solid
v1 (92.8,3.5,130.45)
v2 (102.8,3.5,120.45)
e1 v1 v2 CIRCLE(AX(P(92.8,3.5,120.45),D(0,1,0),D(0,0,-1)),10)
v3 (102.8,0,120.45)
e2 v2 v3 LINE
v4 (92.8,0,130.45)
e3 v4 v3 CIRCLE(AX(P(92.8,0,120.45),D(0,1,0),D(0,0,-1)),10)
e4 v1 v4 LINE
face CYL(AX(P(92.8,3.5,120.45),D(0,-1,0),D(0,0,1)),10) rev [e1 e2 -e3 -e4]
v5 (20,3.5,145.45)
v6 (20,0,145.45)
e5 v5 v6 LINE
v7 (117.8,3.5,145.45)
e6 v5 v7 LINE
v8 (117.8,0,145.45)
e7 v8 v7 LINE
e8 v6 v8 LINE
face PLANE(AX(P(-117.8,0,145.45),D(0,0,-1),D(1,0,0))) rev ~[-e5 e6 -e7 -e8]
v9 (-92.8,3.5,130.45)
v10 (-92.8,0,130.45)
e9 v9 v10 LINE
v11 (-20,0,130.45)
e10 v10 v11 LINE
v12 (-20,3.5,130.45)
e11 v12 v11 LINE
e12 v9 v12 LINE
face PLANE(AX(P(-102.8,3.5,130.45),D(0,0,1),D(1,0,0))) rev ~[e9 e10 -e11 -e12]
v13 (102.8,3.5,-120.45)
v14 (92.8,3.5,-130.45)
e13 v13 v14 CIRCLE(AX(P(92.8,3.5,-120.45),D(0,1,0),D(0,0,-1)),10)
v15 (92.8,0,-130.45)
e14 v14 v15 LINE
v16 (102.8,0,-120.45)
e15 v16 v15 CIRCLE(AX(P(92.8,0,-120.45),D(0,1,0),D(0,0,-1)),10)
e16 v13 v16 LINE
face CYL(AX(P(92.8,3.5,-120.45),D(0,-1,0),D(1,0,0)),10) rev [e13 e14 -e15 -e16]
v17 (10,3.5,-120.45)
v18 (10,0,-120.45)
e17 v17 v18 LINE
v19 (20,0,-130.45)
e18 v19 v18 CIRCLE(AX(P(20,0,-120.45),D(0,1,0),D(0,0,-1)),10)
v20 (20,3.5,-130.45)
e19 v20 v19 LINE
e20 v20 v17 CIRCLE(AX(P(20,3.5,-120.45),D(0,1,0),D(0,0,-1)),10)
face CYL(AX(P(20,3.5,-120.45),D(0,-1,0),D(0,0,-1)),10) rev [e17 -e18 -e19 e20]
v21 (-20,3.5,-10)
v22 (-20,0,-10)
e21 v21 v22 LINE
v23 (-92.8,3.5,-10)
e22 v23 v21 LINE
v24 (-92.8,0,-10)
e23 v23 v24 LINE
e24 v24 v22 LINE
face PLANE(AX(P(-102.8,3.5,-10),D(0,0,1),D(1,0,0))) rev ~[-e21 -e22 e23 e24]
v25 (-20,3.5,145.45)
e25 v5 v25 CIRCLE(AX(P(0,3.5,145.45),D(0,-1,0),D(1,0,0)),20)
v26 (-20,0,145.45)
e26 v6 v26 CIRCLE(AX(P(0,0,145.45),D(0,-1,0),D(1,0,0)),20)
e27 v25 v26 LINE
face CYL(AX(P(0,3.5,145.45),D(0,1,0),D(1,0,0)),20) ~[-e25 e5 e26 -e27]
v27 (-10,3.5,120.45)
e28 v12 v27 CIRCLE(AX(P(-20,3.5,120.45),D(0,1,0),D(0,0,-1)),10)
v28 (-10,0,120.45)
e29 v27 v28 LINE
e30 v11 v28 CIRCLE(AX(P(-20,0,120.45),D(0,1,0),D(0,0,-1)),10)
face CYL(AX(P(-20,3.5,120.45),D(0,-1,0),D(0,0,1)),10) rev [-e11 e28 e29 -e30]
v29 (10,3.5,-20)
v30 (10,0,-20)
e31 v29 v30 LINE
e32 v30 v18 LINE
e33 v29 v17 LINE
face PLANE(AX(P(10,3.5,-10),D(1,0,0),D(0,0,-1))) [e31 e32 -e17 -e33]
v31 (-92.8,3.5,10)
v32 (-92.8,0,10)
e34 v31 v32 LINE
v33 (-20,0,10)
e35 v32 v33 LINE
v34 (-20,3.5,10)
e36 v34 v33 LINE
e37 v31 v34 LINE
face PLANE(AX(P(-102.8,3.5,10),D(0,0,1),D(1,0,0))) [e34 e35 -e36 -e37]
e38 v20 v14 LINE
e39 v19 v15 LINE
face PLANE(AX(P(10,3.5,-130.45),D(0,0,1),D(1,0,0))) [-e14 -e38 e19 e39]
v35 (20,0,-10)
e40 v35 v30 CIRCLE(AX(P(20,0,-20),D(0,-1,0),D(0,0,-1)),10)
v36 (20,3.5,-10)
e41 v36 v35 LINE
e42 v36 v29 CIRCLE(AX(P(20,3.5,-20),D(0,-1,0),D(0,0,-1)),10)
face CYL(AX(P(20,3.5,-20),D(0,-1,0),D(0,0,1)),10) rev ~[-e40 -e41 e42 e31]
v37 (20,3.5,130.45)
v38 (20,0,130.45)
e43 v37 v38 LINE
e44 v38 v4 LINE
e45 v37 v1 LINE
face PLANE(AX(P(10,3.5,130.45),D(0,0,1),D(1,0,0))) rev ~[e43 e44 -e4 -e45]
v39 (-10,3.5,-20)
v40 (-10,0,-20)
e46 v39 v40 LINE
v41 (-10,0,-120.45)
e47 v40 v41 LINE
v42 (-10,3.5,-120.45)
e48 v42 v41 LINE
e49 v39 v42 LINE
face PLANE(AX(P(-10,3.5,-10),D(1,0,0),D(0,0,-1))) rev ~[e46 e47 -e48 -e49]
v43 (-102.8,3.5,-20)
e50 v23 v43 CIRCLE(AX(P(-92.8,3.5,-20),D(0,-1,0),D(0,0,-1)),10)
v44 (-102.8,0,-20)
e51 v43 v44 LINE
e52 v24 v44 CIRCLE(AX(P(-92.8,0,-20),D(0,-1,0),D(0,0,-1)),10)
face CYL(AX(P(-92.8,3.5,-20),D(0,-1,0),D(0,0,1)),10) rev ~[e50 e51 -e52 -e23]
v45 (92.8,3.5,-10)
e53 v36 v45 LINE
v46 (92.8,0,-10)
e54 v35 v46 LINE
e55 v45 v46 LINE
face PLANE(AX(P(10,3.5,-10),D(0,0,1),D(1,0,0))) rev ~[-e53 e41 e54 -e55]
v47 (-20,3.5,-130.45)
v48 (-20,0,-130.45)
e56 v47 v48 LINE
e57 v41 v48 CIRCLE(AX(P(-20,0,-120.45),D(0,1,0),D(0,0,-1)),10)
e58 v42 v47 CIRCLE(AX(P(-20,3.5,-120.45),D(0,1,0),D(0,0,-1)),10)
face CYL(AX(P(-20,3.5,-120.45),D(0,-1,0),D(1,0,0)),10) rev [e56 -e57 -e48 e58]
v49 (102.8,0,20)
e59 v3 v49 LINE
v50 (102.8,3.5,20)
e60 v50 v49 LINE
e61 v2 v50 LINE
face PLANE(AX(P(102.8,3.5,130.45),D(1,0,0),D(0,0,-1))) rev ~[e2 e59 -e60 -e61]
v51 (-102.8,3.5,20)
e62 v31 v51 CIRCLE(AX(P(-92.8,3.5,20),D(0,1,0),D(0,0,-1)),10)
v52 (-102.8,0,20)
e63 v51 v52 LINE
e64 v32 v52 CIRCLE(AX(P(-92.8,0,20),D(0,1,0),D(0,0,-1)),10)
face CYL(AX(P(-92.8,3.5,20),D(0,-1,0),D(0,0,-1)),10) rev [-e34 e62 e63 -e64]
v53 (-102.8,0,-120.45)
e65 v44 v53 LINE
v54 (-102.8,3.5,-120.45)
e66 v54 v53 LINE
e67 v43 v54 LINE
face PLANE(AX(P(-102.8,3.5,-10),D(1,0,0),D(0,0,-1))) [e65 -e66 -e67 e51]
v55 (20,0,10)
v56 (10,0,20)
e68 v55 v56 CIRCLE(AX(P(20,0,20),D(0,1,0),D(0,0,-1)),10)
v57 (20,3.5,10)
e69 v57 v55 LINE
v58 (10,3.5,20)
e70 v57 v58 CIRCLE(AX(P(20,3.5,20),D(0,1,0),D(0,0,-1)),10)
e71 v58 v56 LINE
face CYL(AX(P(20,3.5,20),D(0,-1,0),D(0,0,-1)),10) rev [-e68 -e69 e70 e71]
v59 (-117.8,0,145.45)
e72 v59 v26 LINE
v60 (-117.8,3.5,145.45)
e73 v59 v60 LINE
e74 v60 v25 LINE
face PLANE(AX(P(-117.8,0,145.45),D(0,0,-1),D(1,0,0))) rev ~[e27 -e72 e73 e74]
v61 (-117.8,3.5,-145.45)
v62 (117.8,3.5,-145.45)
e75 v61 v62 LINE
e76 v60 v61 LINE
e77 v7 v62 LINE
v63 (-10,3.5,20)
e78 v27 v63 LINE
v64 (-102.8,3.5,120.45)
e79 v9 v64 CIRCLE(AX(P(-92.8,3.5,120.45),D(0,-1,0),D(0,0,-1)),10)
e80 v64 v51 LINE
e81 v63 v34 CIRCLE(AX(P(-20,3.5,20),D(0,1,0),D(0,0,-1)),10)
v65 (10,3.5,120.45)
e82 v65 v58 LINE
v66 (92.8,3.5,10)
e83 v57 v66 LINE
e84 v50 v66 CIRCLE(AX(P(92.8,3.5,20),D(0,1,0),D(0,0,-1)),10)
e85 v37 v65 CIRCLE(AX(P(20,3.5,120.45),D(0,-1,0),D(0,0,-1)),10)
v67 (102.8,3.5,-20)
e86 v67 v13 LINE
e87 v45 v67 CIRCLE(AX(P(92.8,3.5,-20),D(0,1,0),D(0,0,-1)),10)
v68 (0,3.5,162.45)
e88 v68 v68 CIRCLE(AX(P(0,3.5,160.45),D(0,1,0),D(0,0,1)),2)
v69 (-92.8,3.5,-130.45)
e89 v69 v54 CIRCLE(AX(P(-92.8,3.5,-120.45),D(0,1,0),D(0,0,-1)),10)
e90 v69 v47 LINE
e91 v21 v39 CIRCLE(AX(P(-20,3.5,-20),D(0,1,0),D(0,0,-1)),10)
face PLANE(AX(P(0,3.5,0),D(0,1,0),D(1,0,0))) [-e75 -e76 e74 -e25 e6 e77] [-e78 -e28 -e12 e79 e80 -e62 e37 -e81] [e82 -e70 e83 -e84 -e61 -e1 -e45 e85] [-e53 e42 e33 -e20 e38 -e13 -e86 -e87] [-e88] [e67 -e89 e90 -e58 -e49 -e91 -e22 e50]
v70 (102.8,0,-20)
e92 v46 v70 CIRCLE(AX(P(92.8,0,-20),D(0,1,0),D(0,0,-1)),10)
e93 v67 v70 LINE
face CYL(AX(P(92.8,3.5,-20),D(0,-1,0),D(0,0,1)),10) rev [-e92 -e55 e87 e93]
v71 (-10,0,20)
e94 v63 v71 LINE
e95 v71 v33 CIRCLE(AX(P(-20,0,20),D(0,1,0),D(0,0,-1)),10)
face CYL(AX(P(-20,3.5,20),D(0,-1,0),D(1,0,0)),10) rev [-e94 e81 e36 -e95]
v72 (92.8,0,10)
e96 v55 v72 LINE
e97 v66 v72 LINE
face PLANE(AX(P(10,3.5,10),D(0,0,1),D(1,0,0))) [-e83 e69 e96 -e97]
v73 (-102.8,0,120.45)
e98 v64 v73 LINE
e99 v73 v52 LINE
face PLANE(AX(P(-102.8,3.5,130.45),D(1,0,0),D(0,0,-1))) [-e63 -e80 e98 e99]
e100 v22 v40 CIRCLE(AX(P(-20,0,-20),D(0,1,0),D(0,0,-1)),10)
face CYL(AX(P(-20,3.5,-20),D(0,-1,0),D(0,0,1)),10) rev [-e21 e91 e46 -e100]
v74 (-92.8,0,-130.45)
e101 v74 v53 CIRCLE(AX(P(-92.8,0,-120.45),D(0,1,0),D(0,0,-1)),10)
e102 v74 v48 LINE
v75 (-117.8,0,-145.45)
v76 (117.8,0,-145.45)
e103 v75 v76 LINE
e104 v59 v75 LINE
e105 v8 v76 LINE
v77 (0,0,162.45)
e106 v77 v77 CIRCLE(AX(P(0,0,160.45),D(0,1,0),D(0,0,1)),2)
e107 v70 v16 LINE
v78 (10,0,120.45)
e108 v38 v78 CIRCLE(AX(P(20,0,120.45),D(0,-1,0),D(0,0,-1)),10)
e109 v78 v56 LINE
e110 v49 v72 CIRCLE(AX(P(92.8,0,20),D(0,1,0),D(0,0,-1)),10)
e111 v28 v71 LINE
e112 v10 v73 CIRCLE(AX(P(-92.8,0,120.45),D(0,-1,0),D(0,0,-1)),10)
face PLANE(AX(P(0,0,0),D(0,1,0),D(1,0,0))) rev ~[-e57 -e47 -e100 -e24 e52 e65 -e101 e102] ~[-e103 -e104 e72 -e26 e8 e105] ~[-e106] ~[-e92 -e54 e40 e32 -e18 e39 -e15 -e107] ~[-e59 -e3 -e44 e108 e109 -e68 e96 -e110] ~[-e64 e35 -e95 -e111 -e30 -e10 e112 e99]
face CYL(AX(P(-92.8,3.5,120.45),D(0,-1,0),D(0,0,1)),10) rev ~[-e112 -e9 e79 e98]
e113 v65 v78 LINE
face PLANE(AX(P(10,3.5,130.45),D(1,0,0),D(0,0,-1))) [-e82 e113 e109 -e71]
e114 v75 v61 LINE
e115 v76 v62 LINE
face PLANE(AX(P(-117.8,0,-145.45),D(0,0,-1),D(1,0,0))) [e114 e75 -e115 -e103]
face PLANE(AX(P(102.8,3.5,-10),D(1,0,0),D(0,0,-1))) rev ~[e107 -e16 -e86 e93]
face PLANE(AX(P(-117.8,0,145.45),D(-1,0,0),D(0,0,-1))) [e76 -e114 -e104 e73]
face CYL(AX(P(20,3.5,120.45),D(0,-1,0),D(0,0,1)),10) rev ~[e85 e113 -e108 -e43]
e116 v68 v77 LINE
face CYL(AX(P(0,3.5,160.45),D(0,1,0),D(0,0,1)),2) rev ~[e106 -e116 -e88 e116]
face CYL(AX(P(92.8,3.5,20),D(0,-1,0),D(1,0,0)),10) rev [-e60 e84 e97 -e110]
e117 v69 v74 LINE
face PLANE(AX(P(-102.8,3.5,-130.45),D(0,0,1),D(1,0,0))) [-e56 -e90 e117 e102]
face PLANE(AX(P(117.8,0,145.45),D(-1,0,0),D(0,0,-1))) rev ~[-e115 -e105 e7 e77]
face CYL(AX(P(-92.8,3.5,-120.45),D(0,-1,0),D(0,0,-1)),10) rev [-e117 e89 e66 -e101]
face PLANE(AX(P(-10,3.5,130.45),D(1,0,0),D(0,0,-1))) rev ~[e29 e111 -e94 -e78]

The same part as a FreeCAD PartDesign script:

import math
import FreeCAD as App
import Part
import Sketcher
Q = App.Units.Quantity


def edges_at(feature, points):
    """Names of the edges that pass closest to the given points."""
    edges = feature.Shape.Edges
    near = lambda p: min(range(len(edges)), key=lambda i: edges[i].distToShape(Part.Vertex(*p))[0])
    return sorted({f"Edge{near(p) + 1}" for p in points})

doc = App.newDocument("Part")
body = doc.addObject("PartDesign::Body", "Body")

# Sketch on XZ plane
sketch1 = doc.addObject("Sketcher::SketchObject", "Sketch")
body.addObject(sketch1)
sketch1.AttachmentSupport = (doc.XZ_Plane, [""])
sketch1.MapMode = "FlatFace"
sketch1.addGeometry([
    Part.LineSegment(App.Vector(-118, -145, 0), App.Vector(-118, 145, 0)),
    Part.LineSegment(App.Vector(-118, 145, 0), App.Vector(118, 145, 0)),
    Part.LineSegment(App.Vector(118, 145, 0), App.Vector(118, -145, 0)),
    Part.LineSegment(App.Vector(118, -145, 0), App.Vector(-118, -145, 0)),
], False)
sketch1.addConstraint([
    Sketcher.Constraint("Coincident", 0, 2, 1, 1),
    Sketcher.Constraint("Coincident", 1, 2, 2, 1),
    Sketcher.Constraint("Coincident", 2, 2, 3, 1),
    Sketcher.Constraint("Coincident", 3, 2, 0, 1),
    Sketcher.Constraint("Vertical", 0),
    Sketcher.Constraint("Horizontal", 1),
    Sketcher.Constraint("Vertical", 2),
    Sketcher.Constraint("Horizontal", 3),
    Sketcher.Constraint("Symmetric", 0, 2, 2, 2, -1, 1),
    Sketcher.Constraint("DistanceX", 1, 1, 1, 2, Q("235.6 mm")),
    Sketcher.Constraint("DistanceY", 0, 1, 0, 2, Q("290.9 mm")),
])
pad1 = doc.addObject("PartDesign::Pad", "Pad")
body.addObject(pad1)
pad1.Profile = sketch1
pad1.Length = 3.5
pad1.Reversed = True

# Sketch on XZ plane
sketch2 = doc.addObject("Sketcher::SketchObject", "Sketch001")
body.addObject(sketch2)
sketch2.AttachmentSupport = (doc.XZ_Plane, [""])
sketch2.MapMode = "FlatFace"
sketch2.AttachmentOffset = App.Placement(App.Vector(0, 0, -3.5), App.Rotation())
sketch2.addGeometry([
    Part.LineSegment(App.Vector(20, 145, 0), App.Vector(-20, 145, 0)),
    Part.ArcOfCircle(Part.Circle(App.Vector(0, 145, 0), App.Vector(0, 0, 1), 20), math.radians(0), math.radians(180)),
], False)
sketch2.addConstraint([
    Sketcher.Constraint("Coincident", 0, 1, 1, 1),
    Sketcher.Constraint("Coincident", 1, 2, 0, 2),
    Sketcher.Constraint("Horizontal", 0),
    Sketcher.Constraint("PointOnObject", 1, 3, -2),
    Sketcher.Constraint("Horizontal", 1, 3, 0, 1),
    Sketcher.Constraint("Radius", 1, Q("20 mm")),
    Sketcher.Constraint("DistanceY", -1, 1, 1, 3, Q("145.45 mm")),
])
pad2 = doc.addObject("PartDesign::Pad", "Pad001")
body.addObject(pad2)
pad2.Profile = sketch2
pad2.Length = 3.5

# Sketch on XZ plane
sketch3 = doc.addObject("Sketcher::SketchObject", "Sketch002")
body.addObject(sketch3)
sketch3.AttachmentSupport = (doc.XZ_Plane, [""])
sketch3.MapMode = "FlatFace"
sketch3.AttachmentOffset = App.Placement(App.Vector(0, 0, -3.5), App.Rotation())
sketch3.addGeometry(Part.Circle(App.Vector(0, 160.4, 0), App.Vector(0, 0, 1), 2), False)
sketch3.addConstraint([
    Sketcher.Constraint("PointOnObject", 0, 3, -2),
    Sketcher.Constraint("Diameter", 0, Q("4 mm")),
    Sketcher.Constraint("DistanceY", -1, 1, 0, 3, Q("160.45 mm")),
])
pocket1 = doc.addObject("PartDesign::Pocket", "Pocket")
body.addObject(pocket1)
pocket1.Profile = sketch3
pocket1.Length = 3.5
pocket1.Reversed = True

# Sketch on XZ plane
sketch4 = doc.addObject("Sketcher::SketchObject", "Sketch003")
body.addObject(sketch4)
sketch4.AttachmentSupport = (doc.XZ_Plane, [""])
sketch4.MapMode = "FlatFace"
sketch4.AttachmentOffset = App.Placement(App.Vector(0, 0, -3.5), App.Rotation())
sketch4.addGeometry([
    Part.LineSegment(App.Vector(-103, -130, 0), App.Vector(-103, -10, 0)),  # 0
    Part.LineSegment(App.Vector(-103, -10, 0), App.Vector(-10, -10, 0)),  # 1
    Part.LineSegment(App.Vector(-10, -10, 0), App.Vector(-10, -130, 0)),  # 2
    Part.LineSegment(App.Vector(-10, -130, 0), App.Vector(-103, -130, 0)),  # 3
    Part.LineSegment(App.Vector(10, -130, 0), App.Vector(10, -10, 0)),  # 4
    Part.LineSegment(App.Vector(10, -10, 0), App.Vector(103, -10, 0)),  # 5
    Part.LineSegment(App.Vector(103, -10, 0), App.Vector(103, -130, 0)),  # 6
    Part.LineSegment(App.Vector(103, -130, 0), App.Vector(10, -130, 0)),  # 7
    Part.LineSegment(App.Vector(-103, 10, 0), App.Vector(-103, 130, 0)),  # 8
    Part.LineSegment(App.Vector(-103, 130, 0), App.Vector(-10, 130, 0)),  # 9
    Part.LineSegment(App.Vector(-10, 130, 0), App.Vector(-10, 10, 0)),  # 10
    Part.LineSegment(App.Vector(-10, 10, 0), App.Vector(-103, 10, 0)),  # 11
    Part.LineSegment(App.Vector(10, 10, 0), App.Vector(10, 130, 0)),  # 12
    Part.LineSegment(App.Vector(10, 130, 0), App.Vector(103, 130, 0)),  # 13
    Part.LineSegment(App.Vector(103, 130, 0), App.Vector(103, 10, 0)),  # 14
    Part.LineSegment(App.Vector(103, 10, 0), App.Vector(10, 10, 0)),  # 15
], False)
sketch4.addConstraint([
    Sketcher.Constraint("Coincident", 0, 2, 1, 1),
    Sketcher.Constraint("Coincident", 1, 2, 2, 1),
    Sketcher.Constraint("Coincident", 2, 2, 3, 1),
    Sketcher.Constraint("Coincident", 3, 2, 0, 1),
    Sketcher.Constraint("Coincident", 4, 2, 5, 1),
    Sketcher.Constraint("Coincident", 5, 2, 6, 1),
    Sketcher.Constraint("Coincident", 6, 2, 7, 1),
    Sketcher.Constraint("Coincident", 7, 2, 4, 1),
    Sketcher.Constraint("Coincident", 8, 2, 9, 1),
    Sketcher.Constraint("Coincident", 9, 2, 10, 1),
    Sketcher.Constraint("Coincident", 10, 2, 11, 1),
    Sketcher.Constraint("Coincident", 11, 2, 8, 1),
    Sketcher.Constraint("Coincident", 12, 2, 13, 1),
    Sketcher.Constraint("Coincident", 13, 2, 14, 1),
    Sketcher.Constraint("Coincident", 14, 2, 15, 1),
    Sketcher.Constraint("Coincident", 15, 2, 12, 1),
    Sketcher.Constraint("Vertical", 0),
    Sketcher.Constraint("Horizontal", 1),
    Sketcher.Constraint("Vertical", 2),
    Sketcher.Constraint("Horizontal", 3),
    Sketcher.Constraint("Vertical", 4),
    Sketcher.Constraint("Horizontal", 5),
    Sketcher.Constraint("Vertical", 6),
    Sketcher.Constraint("Horizontal", 7),
    Sketcher.Constraint("Vertical", 8),
    Sketcher.Constraint("Horizontal", 9),
    Sketcher.Constraint("Vertical", 10),
    Sketcher.Constraint("Horizontal", 11),
    Sketcher.Constraint("Vertical", 12),
    Sketcher.Constraint("Horizontal", 13),
    Sketcher.Constraint("Vertical", 14),
    Sketcher.Constraint("Horizontal", 15),
    Sketcher.Constraint("Symmetric", 6, 2, 8, 2, -1, 1),
    Sketcher.Constraint("Symmetric", 4, 2, 10, 2, -1, 1),
    Sketcher.Constraint("Symmetric", 2, 2, 12, 2, -1, 1),
    Sketcher.Constraint("Symmetric", 0, 2, 14, 2, -1, 1),
    Sketcher.Constraint("Symmetric", 1, 2, 4, 2, -2),
    Sketcher.Constraint("Symmetric", 3, 2, 6, 2, -2),
    Sketcher.Constraint("DistanceX", 1, 1, 1, 2, Q("92.8 mm")),
    Sketcher.Constraint("DistanceY", 0, 2, -1, 1, Q("10 mm")),
    Sketcher.Constraint("DistanceX", 1, 2, -1, 1, Q("10 mm")),
    Sketcher.Constraint("DistanceY", 0, 1, 0, 2, Q("120.45 mm")),
])
pocket2 = doc.addObject("PartDesign::Pocket", "Pocket001")
body.addObject(pocket2)
pocket2.Profile = sketch4
pocket2.Length = 10
pocket2.Reversed = True
doc.recompute()

fillet = doc.addObject("PartDesign::Fillet", "Fillet")
body.addObject(fillet)
fillet.Base = (pocket2, edges_at(pocket2, [
    (10, 1.75, -10),
    (10, 1.75, -130.45),
    (102.8, 1.75, -130.45),
    (102.8, 1.75, -10),
    (-102.8, 1.75, 130.45),
    (-102.8, 1.75, 10),
    (-10, 1.75, 10),
    (-10, 1.75, 130.45),
    (10, 1.75, 130.45),
    (10, 1.75, 10),
    (102.8, 1.75, 10),
    (102.8, 1.75, 130.45),
    (-102.8, 1.75, -10),
    (-102.8, 1.75, -130.45),
    (-10, 1.75, -130.45),
    (-10, 1.75, -10),
]))
fillet.Radius = 10

doc.recompute()
